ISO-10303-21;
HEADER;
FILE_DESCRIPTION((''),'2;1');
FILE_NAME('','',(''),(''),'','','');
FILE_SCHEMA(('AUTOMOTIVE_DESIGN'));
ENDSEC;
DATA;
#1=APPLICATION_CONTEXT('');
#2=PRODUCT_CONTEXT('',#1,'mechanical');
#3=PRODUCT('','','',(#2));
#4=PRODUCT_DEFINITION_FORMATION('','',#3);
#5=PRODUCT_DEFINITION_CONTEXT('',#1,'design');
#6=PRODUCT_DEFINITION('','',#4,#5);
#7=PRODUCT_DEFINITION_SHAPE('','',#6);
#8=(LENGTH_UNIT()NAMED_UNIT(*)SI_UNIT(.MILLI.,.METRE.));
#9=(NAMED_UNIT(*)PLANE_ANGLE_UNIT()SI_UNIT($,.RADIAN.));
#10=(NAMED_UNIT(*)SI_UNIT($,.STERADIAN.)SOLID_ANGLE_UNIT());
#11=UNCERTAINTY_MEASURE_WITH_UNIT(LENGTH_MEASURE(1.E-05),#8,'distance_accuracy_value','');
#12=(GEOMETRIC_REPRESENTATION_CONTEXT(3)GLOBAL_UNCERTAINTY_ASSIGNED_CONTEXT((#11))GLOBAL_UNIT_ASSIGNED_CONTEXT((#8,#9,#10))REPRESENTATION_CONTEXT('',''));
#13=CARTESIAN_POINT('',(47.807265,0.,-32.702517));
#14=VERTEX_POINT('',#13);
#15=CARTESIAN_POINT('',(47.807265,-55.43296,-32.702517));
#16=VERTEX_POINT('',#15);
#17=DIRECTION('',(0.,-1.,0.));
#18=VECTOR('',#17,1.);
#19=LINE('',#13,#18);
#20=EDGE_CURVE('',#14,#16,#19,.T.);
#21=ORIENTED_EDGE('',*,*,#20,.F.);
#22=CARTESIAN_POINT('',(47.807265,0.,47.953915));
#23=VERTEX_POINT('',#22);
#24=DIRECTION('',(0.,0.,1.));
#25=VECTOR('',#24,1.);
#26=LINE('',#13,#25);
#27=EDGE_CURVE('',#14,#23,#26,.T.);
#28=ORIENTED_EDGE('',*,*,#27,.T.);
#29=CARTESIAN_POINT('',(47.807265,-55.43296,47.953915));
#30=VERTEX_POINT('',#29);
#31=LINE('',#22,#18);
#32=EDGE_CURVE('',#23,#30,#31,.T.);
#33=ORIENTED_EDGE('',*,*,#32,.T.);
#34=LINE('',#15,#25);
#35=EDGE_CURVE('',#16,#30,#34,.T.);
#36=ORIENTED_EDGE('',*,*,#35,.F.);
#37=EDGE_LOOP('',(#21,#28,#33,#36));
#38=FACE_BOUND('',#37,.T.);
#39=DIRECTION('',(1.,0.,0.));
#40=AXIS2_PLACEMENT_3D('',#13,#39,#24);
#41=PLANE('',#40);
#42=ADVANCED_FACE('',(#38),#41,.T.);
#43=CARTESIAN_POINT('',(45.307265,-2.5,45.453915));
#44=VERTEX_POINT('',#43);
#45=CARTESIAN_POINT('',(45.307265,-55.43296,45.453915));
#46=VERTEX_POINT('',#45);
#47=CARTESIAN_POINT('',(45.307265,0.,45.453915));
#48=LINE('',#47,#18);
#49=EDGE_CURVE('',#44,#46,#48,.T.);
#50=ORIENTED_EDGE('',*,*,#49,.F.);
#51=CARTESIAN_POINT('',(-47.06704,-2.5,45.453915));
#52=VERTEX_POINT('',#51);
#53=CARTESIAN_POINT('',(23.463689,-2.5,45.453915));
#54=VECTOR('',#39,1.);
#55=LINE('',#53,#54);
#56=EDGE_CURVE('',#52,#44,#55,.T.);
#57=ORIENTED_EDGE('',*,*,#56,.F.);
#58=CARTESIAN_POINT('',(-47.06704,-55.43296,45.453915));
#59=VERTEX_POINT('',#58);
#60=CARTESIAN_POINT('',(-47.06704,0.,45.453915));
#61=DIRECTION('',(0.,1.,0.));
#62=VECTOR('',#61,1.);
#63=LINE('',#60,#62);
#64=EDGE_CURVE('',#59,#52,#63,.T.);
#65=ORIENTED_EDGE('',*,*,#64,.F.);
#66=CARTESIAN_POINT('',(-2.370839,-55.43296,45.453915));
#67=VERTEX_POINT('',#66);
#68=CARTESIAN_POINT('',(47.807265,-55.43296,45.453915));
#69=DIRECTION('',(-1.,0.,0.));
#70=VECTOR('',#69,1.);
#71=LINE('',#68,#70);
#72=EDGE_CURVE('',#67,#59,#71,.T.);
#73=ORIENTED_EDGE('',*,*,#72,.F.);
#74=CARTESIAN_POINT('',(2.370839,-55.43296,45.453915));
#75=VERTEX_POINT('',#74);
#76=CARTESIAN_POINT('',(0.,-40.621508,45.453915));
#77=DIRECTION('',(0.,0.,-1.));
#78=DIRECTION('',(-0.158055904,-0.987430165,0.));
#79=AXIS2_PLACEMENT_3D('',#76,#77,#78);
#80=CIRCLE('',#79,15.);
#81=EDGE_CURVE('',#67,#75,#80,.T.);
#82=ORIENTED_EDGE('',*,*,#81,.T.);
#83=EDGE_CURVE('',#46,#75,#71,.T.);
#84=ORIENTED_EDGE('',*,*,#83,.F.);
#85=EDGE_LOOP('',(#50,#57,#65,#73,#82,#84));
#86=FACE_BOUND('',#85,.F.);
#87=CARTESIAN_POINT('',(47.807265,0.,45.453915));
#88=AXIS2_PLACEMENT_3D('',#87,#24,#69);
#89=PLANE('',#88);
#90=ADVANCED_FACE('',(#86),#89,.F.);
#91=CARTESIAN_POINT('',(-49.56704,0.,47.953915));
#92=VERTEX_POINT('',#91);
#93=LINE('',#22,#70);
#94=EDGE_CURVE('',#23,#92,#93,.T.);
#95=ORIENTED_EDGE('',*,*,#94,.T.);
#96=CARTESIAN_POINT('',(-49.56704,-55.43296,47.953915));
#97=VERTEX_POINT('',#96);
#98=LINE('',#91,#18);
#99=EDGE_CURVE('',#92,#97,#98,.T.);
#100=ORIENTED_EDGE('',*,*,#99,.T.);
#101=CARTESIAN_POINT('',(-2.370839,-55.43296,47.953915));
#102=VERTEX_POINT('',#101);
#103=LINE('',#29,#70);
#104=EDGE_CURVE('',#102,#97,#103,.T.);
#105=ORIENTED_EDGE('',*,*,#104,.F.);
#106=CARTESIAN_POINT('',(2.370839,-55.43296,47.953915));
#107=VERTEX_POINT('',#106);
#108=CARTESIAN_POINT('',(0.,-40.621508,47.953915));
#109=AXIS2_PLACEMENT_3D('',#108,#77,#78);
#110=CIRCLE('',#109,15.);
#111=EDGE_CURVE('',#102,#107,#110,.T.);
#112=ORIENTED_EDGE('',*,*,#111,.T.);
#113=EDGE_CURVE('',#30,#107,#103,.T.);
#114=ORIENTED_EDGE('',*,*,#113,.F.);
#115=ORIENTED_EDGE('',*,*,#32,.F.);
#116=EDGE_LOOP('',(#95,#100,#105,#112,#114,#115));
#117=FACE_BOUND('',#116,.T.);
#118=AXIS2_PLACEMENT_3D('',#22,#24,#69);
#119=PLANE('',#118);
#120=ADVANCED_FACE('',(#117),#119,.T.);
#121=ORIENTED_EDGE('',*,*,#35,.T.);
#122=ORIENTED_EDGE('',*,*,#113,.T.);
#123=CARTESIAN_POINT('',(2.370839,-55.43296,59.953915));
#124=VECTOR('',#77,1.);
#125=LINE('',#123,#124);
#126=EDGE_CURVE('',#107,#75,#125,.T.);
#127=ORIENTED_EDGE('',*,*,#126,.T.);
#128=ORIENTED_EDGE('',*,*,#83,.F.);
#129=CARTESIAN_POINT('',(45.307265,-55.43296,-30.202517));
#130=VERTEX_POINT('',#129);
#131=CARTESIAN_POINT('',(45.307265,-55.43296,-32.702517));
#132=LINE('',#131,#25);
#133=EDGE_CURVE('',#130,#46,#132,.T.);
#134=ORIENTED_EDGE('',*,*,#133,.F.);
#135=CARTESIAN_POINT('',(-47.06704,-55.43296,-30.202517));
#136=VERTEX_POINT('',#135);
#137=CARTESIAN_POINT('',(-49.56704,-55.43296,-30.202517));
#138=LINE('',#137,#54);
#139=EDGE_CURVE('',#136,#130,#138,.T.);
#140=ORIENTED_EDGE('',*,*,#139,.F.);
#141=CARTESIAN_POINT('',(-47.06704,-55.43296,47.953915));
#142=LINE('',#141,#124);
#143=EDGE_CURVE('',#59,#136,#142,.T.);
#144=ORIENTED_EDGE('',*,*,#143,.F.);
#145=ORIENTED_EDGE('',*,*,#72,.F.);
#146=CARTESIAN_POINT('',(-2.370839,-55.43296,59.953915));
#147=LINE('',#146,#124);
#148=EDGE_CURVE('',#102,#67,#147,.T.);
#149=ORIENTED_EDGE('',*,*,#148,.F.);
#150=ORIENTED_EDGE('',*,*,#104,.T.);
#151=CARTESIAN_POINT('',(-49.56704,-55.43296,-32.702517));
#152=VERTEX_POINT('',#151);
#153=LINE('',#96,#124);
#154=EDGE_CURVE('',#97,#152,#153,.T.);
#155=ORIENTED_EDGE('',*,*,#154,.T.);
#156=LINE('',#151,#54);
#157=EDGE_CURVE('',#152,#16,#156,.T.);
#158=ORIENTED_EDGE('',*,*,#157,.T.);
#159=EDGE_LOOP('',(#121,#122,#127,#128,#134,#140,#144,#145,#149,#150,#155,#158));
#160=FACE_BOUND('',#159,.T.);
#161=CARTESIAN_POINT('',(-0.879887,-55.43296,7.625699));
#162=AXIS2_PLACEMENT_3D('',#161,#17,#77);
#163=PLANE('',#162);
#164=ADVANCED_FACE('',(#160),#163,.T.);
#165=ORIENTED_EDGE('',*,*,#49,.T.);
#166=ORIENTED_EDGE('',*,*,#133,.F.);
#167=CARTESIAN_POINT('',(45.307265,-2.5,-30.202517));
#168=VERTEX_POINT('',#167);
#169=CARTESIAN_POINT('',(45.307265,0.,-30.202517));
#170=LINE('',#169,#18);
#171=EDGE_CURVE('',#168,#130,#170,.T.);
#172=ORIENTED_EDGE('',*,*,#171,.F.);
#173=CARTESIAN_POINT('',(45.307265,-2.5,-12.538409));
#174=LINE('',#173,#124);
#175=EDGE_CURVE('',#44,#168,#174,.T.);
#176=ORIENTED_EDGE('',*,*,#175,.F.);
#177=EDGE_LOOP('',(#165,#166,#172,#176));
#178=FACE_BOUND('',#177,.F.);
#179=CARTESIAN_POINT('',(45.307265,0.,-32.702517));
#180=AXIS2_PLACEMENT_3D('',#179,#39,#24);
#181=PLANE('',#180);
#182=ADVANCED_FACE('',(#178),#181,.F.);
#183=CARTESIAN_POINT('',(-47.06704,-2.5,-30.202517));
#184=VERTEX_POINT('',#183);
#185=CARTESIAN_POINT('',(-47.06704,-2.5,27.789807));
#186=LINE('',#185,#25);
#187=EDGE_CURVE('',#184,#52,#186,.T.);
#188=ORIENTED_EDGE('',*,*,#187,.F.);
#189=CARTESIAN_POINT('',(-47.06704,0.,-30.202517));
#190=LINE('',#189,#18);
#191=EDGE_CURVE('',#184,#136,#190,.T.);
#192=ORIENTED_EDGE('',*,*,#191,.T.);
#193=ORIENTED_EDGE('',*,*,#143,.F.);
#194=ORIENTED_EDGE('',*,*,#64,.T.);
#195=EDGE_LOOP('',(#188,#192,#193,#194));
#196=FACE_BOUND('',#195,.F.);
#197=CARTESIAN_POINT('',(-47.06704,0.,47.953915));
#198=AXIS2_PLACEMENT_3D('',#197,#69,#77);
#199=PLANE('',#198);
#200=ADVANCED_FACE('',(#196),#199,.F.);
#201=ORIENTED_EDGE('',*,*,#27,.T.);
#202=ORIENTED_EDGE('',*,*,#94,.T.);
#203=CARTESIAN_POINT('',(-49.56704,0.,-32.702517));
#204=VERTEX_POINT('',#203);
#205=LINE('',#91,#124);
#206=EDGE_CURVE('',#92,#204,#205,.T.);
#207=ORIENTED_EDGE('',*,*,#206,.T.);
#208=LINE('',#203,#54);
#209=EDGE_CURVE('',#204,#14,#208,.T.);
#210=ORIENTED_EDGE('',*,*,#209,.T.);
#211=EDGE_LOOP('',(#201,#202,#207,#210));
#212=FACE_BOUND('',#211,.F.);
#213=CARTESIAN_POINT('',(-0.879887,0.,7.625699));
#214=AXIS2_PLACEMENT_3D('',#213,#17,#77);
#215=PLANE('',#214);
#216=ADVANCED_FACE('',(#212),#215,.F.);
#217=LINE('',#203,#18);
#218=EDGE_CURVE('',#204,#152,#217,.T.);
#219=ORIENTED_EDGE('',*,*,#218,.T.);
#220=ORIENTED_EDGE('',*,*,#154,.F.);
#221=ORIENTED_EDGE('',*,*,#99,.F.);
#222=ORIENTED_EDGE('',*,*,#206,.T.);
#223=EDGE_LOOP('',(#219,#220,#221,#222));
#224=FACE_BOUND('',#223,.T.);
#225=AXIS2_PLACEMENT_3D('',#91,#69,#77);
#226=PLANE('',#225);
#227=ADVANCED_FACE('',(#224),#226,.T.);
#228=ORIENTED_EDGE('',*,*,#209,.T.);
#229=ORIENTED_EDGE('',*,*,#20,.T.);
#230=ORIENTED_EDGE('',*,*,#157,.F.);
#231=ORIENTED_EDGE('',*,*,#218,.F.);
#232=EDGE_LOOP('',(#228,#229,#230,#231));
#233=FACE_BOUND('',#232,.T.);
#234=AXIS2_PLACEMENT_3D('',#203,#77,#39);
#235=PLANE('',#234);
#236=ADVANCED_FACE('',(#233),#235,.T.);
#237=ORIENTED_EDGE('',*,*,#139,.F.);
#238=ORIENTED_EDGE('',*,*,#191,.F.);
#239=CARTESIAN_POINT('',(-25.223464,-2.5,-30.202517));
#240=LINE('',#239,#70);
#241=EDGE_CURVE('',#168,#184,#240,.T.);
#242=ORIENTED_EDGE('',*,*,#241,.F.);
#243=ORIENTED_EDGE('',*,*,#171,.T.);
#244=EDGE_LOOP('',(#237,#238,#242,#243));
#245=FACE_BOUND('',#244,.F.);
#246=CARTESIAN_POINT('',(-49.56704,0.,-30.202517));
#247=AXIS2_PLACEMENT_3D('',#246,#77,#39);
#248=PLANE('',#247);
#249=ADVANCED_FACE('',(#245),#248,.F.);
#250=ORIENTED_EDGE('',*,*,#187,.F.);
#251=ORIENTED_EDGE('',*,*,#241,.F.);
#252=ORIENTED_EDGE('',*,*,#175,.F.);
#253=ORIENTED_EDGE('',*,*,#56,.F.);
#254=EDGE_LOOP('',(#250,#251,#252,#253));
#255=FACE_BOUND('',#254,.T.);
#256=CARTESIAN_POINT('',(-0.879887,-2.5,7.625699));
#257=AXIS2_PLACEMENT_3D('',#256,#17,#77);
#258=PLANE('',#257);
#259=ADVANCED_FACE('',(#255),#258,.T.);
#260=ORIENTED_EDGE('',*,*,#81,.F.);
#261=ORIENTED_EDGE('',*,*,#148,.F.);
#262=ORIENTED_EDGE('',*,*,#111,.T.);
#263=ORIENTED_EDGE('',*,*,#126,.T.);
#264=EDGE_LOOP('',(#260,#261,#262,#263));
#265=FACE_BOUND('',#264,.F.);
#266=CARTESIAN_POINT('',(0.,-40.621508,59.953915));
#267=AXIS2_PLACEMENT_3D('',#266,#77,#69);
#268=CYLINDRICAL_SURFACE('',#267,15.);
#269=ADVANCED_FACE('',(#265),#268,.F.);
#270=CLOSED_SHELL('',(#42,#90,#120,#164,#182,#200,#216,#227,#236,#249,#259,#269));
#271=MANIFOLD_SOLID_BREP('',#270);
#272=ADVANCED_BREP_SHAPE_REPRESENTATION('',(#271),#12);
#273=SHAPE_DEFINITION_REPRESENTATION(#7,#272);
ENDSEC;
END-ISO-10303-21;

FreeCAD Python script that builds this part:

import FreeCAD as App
import Part
import Sketcher

V = App.Vector


def faces_at(feature, points):
    """Names of the faces that lie closest to the given points."""
    faces = feature.Shape.Faces
    near = lambda p: min(range(len(faces)), key=lambda i: faces[i].distToShape(Part.Vertex(*p))[0])
    return sorted({f"Face{near(p) + 1}" for p in points})


def add_polygon(sketch, points):
    """Adds a closed chain of lines whose ends are joined by coincident constraints."""
    first, n = sketch.GeometryCount, len(points)
    for a, b in zip(points, points[1:] + points[:1]):
        sketch.addGeometry(Part.LineSegment(App.Vector(*a, 0), App.Vector(*b, 0)), False)
    for i in range(n):
        sketch.addConstraint(Sketcher.Constraint("Coincident", first + i, 2, first + (i + 1) % n, 1))

doc = App.newDocument("Part")
params = doc.addObject("Spreadsheet::Sheet", "Params")
for row, (alias, value) in enumerate([
    ("thickness_wall", "2.5 mm"),
    ("sketch3_diameter", "30 mm"),
    ("hole_diameter", "30 mm"),
    ("hole_depth", "12 mm"),
], start=1):
    params.set(f"A{row}", alias)
    params.set(f"B{row}", "=" + value)
    params.setAlias(f"B{row}", alias)

body = doc.addObject("PartDesign::Body", "Body")

# Sketch on XZ plane
sketch1 = body.newObject("Sketcher::SketchObject", "Sketch")
sketch1.AttachmentSupport = (doc.getObject("XZ_Plane"), [""])
sketch1.MapMode = "FlatFace"
add_polygon(sketch1, [(-49.56704, 47.953915), (-49.56704, -32.702517), (47.807265, -32.702517), (47.807265, 47.953915)])  # lines 0-3
sketch1.addConstraint(Sketcher.Constraint("Vertical", 0))
sketch1.addConstraint(Sketcher.Constraint("Horizontal", 1))
sketch1.addConstraint(Sketcher.Constraint("Vertical", 2))
sketch1.addConstraint(Sketcher.Constraint("Horizontal", 3))
sketch1.addConstraint(Sketcher.Constraint("DistanceY", 0, 2, 0, 1, 80.656432))
sketch1.addConstraint(Sketcher.Constraint("DistanceX", 1, 1, 1, 2, 97.374305))
sketch1.addConstraint(Sketcher.Constraint("DistanceX", 0, 2, -1, 1, 49.56704))
sketch1.addConstraint(Sketcher.Constraint("DistanceY", 0, 2, -1, 1, 32.702517))

# Sketch on XY plane
sketch2 = body.newObject("Sketcher::SketchObject", "Sketch001")
sketch2.AttachmentSupport = (doc.getObject("XY_Plane"), [""])
sketch2.MapMode = "FlatFace"
sketch2.addGeometry(Part.LineSegment(V(0, 0, 0), V(0, -55.43296, 0)), False)
sketch2.addConstraint(Sketcher.Constraint("Vertical", 0))
sketch2.addConstraint(Sketcher.Constraint("Coincident", 0, 1, -1, 1))
sketch2.addConstraint(Sketcher.Constraint("DistanceY", 0, 2, 0, 1, 55.43296))
doc.recompute()

additivepipe = body.newObject("PartDesign::AdditivePipe", "AdditivePipe")
additivepipe.Profile = sketch1
additivepipe.Spine = (sketch2, ["Edge1"])
doc.recompute()

thickness = body.newObject("PartDesign::Thickness", "Thickness")
thickness.Base = (additivepipe, faces_at(additivepipe, [(-0.88, -55.433, 7.626)]))
thickness.setExpression("Value", "Params.thickness_wall")
thickness.Reversed = True
thickness.Join = "Arc"

# Sketch on XY plane
sketch3 = body.newObject("Sketcher::SketchObject", "Sketch002")
sketch3.AttachmentSupport = (doc.getObject("XY_Plane"), [""])
sketch3.MapMode = "FlatFace"
sketch3.AttachmentOffset = App.Placement(V(0, 0, 47.953915), App.Rotation())
sketch3.addGeometry(Part.Circle(V(0, -40.621508, 0), V(0, 0, 1), 15), False)
sketch3.addConstraint(Sketcher.Constraint("PointOnObject", 0, 3, -2))
sketch3.addConstraint(Sketcher.Constraint("Diameter", 0, 30.0))
sketch3.addConstraint(Sketcher.Constraint("DistanceY", 0, 3, -1, 1, 40.621508))
sketch3.setExpression("Constraints[1]", "Params.sketch3_diameter")
doc.recompute()
hole = body.newObject("PartDesign::Hole", "Hole")
hole.Profile = sketch3
hole.ThreadType = "None"
hole.setExpression("Diameter", "Params.hole_diameter")
hole.DepthType = "Dimension"
hole.setExpression("Depth", "Params.hole_depth")
hole.DrillPoint = "Angled"
hole.DrillPointAngle = 118

doc.recompute()
